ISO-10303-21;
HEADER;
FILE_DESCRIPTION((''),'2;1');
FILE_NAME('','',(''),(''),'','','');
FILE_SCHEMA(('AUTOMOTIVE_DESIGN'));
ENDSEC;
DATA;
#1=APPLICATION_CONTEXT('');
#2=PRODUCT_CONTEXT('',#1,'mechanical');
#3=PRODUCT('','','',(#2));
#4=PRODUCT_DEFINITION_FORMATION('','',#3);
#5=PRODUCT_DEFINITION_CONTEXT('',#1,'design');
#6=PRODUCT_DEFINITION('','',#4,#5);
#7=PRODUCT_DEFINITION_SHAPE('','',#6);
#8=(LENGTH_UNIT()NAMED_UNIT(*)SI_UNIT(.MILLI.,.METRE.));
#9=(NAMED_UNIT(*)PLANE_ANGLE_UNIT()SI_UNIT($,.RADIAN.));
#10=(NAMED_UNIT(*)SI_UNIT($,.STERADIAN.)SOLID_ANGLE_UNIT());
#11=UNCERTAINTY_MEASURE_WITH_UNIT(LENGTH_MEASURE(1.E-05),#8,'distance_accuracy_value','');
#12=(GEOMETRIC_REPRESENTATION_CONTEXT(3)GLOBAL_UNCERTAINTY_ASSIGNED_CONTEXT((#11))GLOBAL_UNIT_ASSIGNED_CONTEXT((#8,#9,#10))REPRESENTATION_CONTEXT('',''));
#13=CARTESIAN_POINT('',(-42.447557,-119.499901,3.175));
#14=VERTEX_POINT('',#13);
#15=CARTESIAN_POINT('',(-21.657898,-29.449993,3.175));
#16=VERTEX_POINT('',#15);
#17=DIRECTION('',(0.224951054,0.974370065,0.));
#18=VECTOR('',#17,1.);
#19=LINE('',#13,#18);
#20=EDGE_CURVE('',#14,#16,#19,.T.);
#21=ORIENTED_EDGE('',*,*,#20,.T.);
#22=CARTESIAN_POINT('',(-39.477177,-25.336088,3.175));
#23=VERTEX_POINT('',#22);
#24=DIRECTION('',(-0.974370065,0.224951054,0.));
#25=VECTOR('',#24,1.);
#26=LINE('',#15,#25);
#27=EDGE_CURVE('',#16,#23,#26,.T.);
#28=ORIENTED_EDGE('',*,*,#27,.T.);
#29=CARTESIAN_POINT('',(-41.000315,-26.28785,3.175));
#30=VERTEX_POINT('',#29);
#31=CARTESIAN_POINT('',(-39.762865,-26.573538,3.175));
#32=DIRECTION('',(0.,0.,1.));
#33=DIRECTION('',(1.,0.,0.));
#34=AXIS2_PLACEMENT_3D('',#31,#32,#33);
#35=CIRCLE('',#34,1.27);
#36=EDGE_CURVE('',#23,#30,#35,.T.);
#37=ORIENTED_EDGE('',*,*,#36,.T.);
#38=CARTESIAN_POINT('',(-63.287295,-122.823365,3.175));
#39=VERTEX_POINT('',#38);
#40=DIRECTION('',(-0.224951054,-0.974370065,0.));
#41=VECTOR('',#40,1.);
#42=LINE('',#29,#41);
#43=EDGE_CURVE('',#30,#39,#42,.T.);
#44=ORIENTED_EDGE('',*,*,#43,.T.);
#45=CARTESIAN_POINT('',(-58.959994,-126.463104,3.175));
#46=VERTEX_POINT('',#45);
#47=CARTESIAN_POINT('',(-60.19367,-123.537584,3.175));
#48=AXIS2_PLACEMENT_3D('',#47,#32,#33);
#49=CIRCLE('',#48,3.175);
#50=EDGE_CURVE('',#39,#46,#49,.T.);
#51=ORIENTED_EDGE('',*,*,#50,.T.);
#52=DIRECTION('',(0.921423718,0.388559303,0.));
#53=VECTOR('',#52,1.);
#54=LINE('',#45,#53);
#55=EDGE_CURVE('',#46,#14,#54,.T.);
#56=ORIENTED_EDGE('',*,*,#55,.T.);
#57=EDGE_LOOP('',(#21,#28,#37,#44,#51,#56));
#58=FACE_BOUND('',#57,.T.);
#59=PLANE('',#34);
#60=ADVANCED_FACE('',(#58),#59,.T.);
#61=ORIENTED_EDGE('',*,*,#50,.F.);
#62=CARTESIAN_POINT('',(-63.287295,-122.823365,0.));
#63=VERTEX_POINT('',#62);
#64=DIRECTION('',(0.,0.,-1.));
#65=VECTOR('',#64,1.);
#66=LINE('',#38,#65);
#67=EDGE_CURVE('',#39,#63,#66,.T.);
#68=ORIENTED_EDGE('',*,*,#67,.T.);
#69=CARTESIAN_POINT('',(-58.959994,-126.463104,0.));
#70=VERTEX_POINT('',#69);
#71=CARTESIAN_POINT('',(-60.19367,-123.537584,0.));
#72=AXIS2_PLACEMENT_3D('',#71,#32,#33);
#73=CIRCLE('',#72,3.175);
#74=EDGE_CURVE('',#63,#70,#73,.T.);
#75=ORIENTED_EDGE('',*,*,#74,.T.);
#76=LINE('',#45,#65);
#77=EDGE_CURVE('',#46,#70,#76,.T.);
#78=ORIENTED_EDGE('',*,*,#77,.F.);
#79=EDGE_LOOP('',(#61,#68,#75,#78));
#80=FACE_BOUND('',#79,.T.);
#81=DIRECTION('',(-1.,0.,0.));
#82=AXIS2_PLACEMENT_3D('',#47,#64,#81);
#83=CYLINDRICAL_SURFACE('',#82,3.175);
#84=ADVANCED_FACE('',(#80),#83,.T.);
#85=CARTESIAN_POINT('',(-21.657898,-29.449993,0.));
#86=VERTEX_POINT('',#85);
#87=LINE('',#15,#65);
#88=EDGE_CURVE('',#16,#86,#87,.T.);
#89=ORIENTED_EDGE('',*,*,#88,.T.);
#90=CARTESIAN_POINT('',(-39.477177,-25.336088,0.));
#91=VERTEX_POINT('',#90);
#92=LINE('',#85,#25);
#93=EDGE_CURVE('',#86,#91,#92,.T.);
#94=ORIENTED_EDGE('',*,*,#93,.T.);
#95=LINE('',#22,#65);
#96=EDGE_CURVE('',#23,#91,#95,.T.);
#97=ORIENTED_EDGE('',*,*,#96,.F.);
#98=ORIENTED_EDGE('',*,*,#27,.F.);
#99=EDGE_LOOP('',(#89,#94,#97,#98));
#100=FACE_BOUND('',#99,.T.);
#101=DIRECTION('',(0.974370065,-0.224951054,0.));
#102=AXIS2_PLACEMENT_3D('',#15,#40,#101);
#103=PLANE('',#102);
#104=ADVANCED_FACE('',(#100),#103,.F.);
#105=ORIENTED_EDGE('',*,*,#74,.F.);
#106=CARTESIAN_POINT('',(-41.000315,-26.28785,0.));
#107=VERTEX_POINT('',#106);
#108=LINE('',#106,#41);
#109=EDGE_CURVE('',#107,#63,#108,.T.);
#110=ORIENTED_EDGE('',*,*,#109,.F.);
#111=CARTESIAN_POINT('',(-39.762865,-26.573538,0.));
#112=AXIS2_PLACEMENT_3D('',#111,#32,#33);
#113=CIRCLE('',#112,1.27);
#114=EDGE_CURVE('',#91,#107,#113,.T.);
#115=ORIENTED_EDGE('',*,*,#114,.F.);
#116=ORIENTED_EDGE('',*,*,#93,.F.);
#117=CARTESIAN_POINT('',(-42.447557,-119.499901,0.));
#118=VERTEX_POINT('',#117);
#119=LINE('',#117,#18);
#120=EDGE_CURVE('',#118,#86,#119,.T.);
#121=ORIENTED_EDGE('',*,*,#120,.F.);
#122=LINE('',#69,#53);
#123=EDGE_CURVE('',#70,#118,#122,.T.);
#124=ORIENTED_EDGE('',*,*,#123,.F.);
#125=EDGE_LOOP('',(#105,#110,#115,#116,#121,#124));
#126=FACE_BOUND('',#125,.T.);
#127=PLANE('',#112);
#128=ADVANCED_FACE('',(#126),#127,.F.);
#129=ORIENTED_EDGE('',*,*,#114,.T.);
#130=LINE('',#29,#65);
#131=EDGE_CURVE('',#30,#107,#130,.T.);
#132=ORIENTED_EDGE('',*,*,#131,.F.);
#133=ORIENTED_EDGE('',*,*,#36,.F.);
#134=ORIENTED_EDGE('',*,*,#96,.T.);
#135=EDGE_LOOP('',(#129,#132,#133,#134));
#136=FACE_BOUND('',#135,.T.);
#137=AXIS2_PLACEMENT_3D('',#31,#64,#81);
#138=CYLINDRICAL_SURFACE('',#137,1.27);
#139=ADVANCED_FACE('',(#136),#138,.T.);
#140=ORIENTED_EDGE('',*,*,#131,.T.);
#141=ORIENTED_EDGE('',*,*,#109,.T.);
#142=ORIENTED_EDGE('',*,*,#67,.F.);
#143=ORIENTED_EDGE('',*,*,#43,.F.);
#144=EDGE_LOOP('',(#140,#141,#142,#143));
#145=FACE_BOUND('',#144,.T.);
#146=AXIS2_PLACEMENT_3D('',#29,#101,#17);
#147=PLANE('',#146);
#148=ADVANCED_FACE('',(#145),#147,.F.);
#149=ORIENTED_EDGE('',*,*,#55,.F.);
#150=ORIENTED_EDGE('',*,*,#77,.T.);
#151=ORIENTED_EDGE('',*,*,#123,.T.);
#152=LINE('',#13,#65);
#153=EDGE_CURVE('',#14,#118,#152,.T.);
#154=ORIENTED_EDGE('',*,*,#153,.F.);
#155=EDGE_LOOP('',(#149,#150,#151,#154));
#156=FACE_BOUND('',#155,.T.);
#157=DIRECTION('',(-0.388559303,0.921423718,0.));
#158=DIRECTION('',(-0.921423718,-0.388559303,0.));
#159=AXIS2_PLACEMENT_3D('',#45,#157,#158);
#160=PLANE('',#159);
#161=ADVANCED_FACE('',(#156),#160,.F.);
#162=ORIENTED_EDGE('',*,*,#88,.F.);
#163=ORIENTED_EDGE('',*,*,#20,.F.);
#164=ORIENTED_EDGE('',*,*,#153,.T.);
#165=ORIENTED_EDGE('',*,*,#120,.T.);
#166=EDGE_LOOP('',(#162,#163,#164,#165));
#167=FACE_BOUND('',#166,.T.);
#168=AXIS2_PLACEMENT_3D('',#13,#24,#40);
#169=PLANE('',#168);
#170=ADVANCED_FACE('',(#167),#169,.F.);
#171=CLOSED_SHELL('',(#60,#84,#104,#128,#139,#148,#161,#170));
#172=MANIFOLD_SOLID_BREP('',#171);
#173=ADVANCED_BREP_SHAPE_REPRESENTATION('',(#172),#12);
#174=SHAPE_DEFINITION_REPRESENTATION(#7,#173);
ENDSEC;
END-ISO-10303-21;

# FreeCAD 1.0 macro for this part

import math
import FreeCAD as App
import Part
import Sketcher

V = App.Vector
Q = App.Units.Quantity

doc = App.newDocument("Part")
body = doc.addObject("PartDesign::Body", "Body")

sketch1 = body.newObject("Sketcher::SketchObject", "Sketch")
sketch1.AttachmentSupport = (doc.getObject("XY_Plane"), [""])
sketch1.MapMode = "FlatFace"
sketch1.addGeometry([
    Part.LineSegment(V(-41, -26.3, 0), V(-63.3, -122.8, 0)),
    Part.ArcOfCircle(Part.Circle(V(-60.2, -123.5, 0), V(0, 0, 1), 3.2), math.radians(167), math.radians(293)),
    Part.LineSegment(V(-59, -126.5, 0), V(-42.4, -119.5, 0)),
    Part.LineSegment(V(-42.4, -119.5, 0), V(-21.7, -29.4, 0)),
    Part.LineSegment(V(-21.7, -29.4, 0), V(-39.5, -25.3, 0)),
    Part.ArcOfCircle(Part.Circle(V(-39.8, -26.6, 0), V(0, 0, 1), 1.3), math.radians(77), math.radians(167)),
], False)
sketch1.addConstraint([
    Sketcher.Constraint("Tangent", 0, 2, 1, 1),
    Sketcher.Constraint("Tangent", 1, 2, 2, 1),
    Sketcher.Constraint("Coincident", 2, 2, 3, 1),
    Sketcher.Constraint("Coincident", 3, 2, 4, 1),
    Sketcher.Constraint("Tangent", 4, 2, 5, 1),
    Sketcher.Constraint("Tangent", 5, 2, 0, 1),
    Sketcher.Constraint("Parallel", 0, 3),
    Sketcher.Constraint("Perpendicular", 3, 4),
    Sketcher.Constraint("Radius", 5, Q("0.05 in")),
    Sketcher.Constraint("Angle", 0, Q("-103 deg")),
    Sketcher.Constraint("Radius", 1, Q("0.125 in")),
    Sketcher.Constraint("Distance", 4, Q("0.72 in")),
    Sketcher.Constraint("DistanceY", 2, 2, -1, 1, 119.499901),
    Sketcher.Constraint("DistanceX", 0, 2, 1, 2, 4.327301),
    Sketcher.Constraint("Distance", 3, 92.41859),
    Sketcher.Constraint("DistanceX", 1, 3, -1, 1, 60.19367),
])
pad1 = body.newObject("PartDesign::Pad", "Pad")
pad1.Profile = sketch1
pad1.Length = Q("0.125 in")

doc.recompute()
